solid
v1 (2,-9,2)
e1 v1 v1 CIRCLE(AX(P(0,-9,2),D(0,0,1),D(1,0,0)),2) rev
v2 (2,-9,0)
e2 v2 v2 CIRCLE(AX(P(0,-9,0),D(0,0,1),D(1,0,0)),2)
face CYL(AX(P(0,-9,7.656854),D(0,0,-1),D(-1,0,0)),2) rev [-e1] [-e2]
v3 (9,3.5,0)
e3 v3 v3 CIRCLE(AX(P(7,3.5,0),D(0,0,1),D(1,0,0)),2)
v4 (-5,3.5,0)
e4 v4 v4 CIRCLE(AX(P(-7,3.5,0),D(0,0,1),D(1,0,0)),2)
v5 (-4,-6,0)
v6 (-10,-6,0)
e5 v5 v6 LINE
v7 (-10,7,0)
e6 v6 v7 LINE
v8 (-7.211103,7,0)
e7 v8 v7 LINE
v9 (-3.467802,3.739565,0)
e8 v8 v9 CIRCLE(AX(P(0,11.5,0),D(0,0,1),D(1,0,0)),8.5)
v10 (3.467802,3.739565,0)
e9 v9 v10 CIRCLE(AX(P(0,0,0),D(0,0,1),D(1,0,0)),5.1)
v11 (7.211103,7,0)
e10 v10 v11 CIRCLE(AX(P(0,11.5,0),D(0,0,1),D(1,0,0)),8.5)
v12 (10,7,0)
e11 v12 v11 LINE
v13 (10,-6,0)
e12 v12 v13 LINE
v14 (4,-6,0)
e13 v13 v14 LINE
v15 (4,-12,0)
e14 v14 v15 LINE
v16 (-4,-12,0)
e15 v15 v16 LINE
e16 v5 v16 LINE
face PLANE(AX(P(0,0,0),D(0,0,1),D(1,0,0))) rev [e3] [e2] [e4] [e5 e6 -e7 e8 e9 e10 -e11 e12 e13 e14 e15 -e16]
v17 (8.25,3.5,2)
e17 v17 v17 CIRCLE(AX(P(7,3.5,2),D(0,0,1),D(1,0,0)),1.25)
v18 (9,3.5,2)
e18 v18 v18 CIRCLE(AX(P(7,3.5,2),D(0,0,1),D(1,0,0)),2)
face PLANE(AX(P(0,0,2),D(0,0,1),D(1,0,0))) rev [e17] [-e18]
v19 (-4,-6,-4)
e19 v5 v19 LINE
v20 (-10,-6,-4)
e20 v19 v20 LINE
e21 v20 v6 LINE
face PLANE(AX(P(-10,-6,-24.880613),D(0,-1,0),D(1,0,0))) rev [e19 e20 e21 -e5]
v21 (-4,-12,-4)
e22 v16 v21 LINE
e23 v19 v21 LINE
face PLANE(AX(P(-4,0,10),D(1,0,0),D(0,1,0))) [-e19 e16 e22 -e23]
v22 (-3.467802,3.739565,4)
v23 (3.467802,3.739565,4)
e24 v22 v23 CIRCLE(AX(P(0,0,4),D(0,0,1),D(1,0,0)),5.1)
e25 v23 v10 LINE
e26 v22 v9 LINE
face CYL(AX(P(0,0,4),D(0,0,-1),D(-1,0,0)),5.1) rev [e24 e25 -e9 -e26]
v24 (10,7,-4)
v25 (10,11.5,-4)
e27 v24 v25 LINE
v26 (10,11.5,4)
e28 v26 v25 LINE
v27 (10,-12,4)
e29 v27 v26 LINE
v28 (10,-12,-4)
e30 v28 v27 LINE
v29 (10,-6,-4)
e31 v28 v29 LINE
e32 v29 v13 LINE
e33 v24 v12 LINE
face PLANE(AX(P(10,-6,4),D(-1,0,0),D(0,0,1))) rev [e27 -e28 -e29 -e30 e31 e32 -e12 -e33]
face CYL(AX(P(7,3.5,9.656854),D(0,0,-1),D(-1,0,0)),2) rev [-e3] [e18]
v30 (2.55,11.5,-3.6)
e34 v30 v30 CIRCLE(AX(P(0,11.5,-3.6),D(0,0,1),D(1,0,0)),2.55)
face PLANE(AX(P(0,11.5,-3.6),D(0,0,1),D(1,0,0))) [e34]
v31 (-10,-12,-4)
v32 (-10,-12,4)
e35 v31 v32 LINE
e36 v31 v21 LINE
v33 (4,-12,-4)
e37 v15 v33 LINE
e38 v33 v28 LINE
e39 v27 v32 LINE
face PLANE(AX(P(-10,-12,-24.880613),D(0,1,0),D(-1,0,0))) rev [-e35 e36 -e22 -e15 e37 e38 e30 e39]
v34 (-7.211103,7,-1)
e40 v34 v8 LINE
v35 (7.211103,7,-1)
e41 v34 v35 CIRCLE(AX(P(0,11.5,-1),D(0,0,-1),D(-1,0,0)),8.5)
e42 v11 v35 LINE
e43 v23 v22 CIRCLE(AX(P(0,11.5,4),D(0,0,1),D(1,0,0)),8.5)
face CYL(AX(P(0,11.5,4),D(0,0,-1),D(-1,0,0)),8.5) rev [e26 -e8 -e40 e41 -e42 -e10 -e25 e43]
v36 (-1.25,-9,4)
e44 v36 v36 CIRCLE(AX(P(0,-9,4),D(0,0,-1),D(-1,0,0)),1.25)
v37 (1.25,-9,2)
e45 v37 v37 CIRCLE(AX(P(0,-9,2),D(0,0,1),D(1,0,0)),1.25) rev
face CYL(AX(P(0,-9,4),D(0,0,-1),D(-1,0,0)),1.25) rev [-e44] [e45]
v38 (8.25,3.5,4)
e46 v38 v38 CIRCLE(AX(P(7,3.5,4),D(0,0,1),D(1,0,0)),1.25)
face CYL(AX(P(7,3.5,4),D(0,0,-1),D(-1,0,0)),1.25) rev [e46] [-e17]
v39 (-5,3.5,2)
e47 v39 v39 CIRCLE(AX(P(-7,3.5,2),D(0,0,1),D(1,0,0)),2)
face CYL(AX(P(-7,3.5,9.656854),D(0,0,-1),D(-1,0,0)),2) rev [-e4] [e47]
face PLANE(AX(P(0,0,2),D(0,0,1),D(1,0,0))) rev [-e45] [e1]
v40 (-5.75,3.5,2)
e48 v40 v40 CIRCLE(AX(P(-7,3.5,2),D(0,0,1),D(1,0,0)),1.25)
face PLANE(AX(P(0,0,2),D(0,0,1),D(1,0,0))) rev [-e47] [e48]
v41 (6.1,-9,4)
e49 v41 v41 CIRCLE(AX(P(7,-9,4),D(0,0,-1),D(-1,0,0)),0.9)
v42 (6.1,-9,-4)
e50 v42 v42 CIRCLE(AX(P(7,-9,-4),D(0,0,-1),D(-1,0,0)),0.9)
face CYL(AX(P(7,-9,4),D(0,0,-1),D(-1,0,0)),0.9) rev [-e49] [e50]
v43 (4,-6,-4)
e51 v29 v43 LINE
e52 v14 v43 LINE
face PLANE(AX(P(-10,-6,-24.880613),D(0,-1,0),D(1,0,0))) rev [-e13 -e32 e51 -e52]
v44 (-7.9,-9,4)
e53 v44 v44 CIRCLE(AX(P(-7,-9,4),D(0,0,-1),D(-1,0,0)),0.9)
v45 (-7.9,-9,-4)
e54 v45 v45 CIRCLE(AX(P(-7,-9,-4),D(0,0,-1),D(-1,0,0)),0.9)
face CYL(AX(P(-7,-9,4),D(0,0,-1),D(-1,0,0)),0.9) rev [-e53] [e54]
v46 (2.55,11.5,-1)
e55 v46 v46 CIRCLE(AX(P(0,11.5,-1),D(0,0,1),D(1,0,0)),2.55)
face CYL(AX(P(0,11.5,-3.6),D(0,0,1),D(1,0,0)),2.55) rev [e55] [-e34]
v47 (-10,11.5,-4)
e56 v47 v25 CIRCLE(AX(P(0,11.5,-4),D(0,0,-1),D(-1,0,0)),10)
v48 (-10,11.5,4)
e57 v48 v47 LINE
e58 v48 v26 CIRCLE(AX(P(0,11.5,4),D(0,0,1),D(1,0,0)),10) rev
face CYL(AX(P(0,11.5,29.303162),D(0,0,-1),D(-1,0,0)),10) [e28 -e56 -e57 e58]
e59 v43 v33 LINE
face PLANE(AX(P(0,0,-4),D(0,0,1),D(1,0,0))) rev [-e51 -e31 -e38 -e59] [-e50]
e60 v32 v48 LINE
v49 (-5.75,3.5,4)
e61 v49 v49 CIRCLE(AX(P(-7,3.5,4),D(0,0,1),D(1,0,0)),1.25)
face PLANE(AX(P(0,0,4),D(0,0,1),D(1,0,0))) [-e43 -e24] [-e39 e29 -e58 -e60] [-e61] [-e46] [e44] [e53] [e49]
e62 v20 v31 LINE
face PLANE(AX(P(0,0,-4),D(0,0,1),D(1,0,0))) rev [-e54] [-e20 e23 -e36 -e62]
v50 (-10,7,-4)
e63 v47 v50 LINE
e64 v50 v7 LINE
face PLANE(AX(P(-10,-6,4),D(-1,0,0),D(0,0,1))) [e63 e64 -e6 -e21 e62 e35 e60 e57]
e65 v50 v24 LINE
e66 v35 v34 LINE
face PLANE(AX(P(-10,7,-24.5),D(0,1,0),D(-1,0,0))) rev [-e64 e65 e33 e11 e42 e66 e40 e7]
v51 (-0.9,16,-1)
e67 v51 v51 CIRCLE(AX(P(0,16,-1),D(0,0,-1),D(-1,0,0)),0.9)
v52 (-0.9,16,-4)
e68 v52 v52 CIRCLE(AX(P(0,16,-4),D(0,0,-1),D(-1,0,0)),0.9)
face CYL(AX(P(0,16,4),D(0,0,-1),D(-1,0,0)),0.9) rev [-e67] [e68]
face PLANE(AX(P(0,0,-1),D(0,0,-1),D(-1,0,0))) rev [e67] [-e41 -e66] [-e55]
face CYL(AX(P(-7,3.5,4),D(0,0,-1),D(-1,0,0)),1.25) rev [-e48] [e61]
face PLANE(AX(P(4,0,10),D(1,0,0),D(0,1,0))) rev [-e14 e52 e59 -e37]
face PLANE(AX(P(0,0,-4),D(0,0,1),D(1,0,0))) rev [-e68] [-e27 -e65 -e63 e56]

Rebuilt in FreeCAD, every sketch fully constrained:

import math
import FreeCAD as App
import Part
import Sketcher

doc = App.newDocument("Part")
body = doc.addObject("PartDesign::Body", "Body")

sketch1 = body.newObject("Sketcher::SketchObject", "Sketch")
sketch1.AttachmentSupport = (doc.getObject("XY_Plane"), [""])
sketch1.MapMode = "FlatFace"
sketch1.addGeometry(Part.LineSegment(App.Vector(-10, 6, 0), App.Vector(-10, -6, 0)), False)
sketch1.addGeometry(Part.LineSegment(App.Vector(-10, -6, 0), App.Vector(10, -6, 0)), False)
sketch1.addGeometry(Part.LineSegment(App.Vector(10, -6, 0), App.Vector(10, 6, 0)), False)
sketch1.addGeometry(Part.LineSegment(App.Vector(10, 6, 0), App.Vector(6.5, 6, 0)), False)
sketch1.addGeometry(Part.ArcOfCircle(Part.Circle(App.Vector(0, 11.5, 0), App.Vector(0, 0, 1), 8.5), math.radians(-66), math.radians(-40)), False)
sketch1.addGeometry(Part.ArcOfCircle(Part.Circle(App.Vector(0, 0, 0), App.Vector(0, 0, 1), 5.1), math.radians(133), math.radians(407)), False)
sketch1.addGeometry(Part.ArcOfCircle(Part.Circle(App.Vector(0, 11.5, 0), App.Vector(0, 0, 1), 8.5), math.radians(-140), math.radians(-114)), False)
sketch1.addGeometry(Part.LineSegment(App.Vector(-6.5, 6, 0), App.Vector(-10, 6, 0)), False)
sketch1.addGeometry(Part.Circle(App.Vector(-7, 3.5, 0), App.Vector(0, 0, 1), 1.2), False)
sketch1.addGeometry(Part.Circle(App.Vector(7, 3.5, 0), App.Vector(0, 0, 1), 1.2), False)
sketch1.addConstraint(Sketcher.Constraint("Coincident", 0, 2, 1, 1))
sketch1.addConstraint(Sketcher.Constraint("Coincident", 1, 2, 2, 1))
sketch1.addConstraint(Sketcher.Constraint("Coincident", 2, 2, 3, 1))
sketch1.addConstraint(Sketcher.Constraint("Coincident", 3, 2, 4, 2))
sketch1.addConstraint(Sketcher.Constraint("Coincident", 4, 1, 5, 2))
sketch1.addConstraint(Sketcher.Constraint("Coincident", 5, 1, 6, 2))
sketch1.addConstraint(Sketcher.Constraint("Coincident", 6, 1, 7, 1))
sketch1.addConstraint(Sketcher.Constraint("Coincident", 7, 2, 0, 1))
sketch1.addConstraint(Sketcher.Constraint("Vertical", 0))
sketch1.addConstraint(Sketcher.Constraint("Horizontal", 1))
sketch1.addConstraint(Sketcher.Constraint("Vertical", 2))
sketch1.addConstraint(Sketcher.Constraint("Horizontal", 3))
sketch1.addConstraint(Sketcher.Constraint("Horizontal", 7))
sketch1.addConstraint(Sketcher.Constraint("Coincident", 5, 3, -1, 1))
sketch1.addConstraint(Sketcher.Constraint("Coincident", 6, 3, 4, 3))
sketch1.addConstraint(Sketcher.Constraint("Equal", 4, 6))
sketch1.addConstraint(Sketcher.Constraint("Equal", 8, 9))
sketch1.addConstraint(Sketcher.Constraint("Symmetric", 0, 2, 2, 2, -1, 1))
sketch1.addConstraint(Sketcher.Constraint("Symmetric", 8, 3, 9, 3, -2))
sketch1.addConstraint(Sketcher.Constraint("Symmetric", 3, 2, 6, 1, -2))
sketch1.addConstraint(Sketcher.Constraint("Diameter", 8, 2.5))
sketch1.addConstraint(Sketcher.Constraint("Radius", 4, 8.5))
sketch1.addConstraint(Sketcher.Constraint("Radius", 5, 5.1))
sketch1.addConstraint(Sketcher.Constraint("DistanceX", 1, 1, 1, 2, 20.0))
sketch1.addConstraint(Sketcher.Constraint("DistanceY", 0, 2, 0, 1, 12.0))
sketch1.addConstraint(Sketcher.Constraint("DistanceX", 8, 3, -1, 1, 7.0))
sketch1.addConstraint(Sketcher.Constraint("DistanceY", 8, 3, 6, 3, 8.0))
sketch1.addConstraint(Sketcher.Constraint("DistanceY", -1, 1, 4, 3, 11.5))
pad1 = body.newObject("PartDesign::Pad", "Pad")
pad1.Profile = sketch1
pad1.Length = 8
pad1.Midplane = True

sketch2 = body.newObject("Sketcher::SketchObject", "Sketch001")
sketch2.AttachmentSupport = (doc.getObject("XY_Plane"), [""])
sketch2.MapMode = "FlatFace"
sketch2.AttachmentOffset = App.Placement(App.Vector(0, 0, 4), App.Rotation())
sketch2.addGeometry(Part.LineSegment(App.Vector(-6.5, 6, 0), App.Vector(-10, 6, 0)), False)
sketch2.addGeometry(Part.LineSegment(App.Vector(-10, 6, 0), App.Vector(-10, 11.5, 0)), False)
sketch2.addGeometry(Part.ArcOfCircle(Part.Circle(App.Vector(0, 11.5, 0), App.Vector(0, 0, 1), 10), math.radians(0), math.radians(180)), False)
sketch2.addGeometry(Part.LineSegment(App.Vector(10, 11.5, 0), App.Vector(10, 6, 0)), False)
sketch2.addGeometry(Part.LineSegment(App.Vector(10, 6, 0), App.Vector(6.5, 6, 0)), False)
sketch2.addGeometry(Part.ArcOfCircle(Part.Circle(App.Vector(0, 11.5, 0), App.Vector(0, 0, 1), 8.5), math.radians(-40), math.radians(220)), False)
sketch2.addConstraint(Sketcher.Constraint("Coincident", 0, 2, 1, 1))
sketch2.addConstraint(Sketcher.Constraint("Tangent", 1, 2, 2, 2))
sketch2.addConstraint(Sketcher.Constraint("Tangent", 2, 1, 3, 1))
sketch2.addConstraint(Sketcher.Constraint("Coincident", 3, 2, 4, 1))
sketch2.addConstraint(Sketcher.Constraint("Coincident", 4, 2, 5, 1))
sketch2.addConstraint(Sketcher.Constraint("Coincident", 5, 2, 0, 1))
sketch2.addConstraint(Sketcher.Constraint("Horizontal", 0))
sketch2.addConstraint(Sketcher.Constraint("Vertical", 1))
sketch2.addConstraint(Sketcher.Constraint("Vertical", 3))
sketch2.addConstraint(Sketcher.Constraint("Horizontal", 4))
sketch2.addConstraint(Sketcher.Constraint("Coincident", 5, 3, 2, 3))
sketch2.addConstraint(Sketcher.Constraint("Symmetric", 0, 2, 3, 2, -2))
sketch2.addConstraint(Sketcher.Constraint("Radius", 2, 10.0))
sketch2.addConstraint(Sketcher.Constraint("Radius", 5, 8.5))
sketch2.addConstraint(Sketcher.Constraint("DistanceY", 1, 1, 1, 2, 5.5))
sketch2.addConstraint(Sketcher.Constraint("DistanceY", -1, 1, 0, 2, 6.0))
pad2 = body.newObject("PartDesign::Pad", "Pad001")
pad2.Profile = sketch2
pad2.Length = 8
pad2.Reversed = True

sketch3 = body.newObject("Sketcher::SketchObject", "Sketch002")
sketch3.AttachmentSupport = (doc.getObject("XY_Plane"), [""])
sketch3.MapMode = "FlatFace"
sketch3.AttachmentOffset = App.Placement(App.Vector(0, 0, -1), App.Rotation())
sketch3.addGeometry(Part.LineSegment(App.Vector(6, 6, 0), App.Vector(-6, 6, 0)), False)
sketch3.addGeometry(Part.ArcOfCircle(Part.Circle(App.Vector(0, 11, 0), App.Vector(0, 0, 1), 8), math.radians(180), math.radians(220)), False)
sketch3.addGeometry(Part.ArcOfCircle(Part.Circle(App.Vector(0, 12, 0), App.Vector(0, 0, 1), 8), math.radians(-40), math.radians(180)), False)
sketch3.addConstraint(Sketcher.Constraint("Coincident", 0, 2, 1, 2))
sketch3.addConstraint(Sketcher.Constraint("Tangent", 1, 1, 2, 2))
sketch3.addConstraint(Sketcher.Constraint("Coincident", 2, 1, 0, 1))
sketch3.addConstraint(Sketcher.Constraint("Horizontal", 0))
sketch3.addConstraint(Sketcher.Constraint("Equal", 1, 2))
sketch3.addConstraint(Sketcher.Constraint("PointOnObject", 1, 3, -2))
sketch3.addConstraint(Sketcher.Constraint("Horizontal", 2, 3, 1, 1))
sketch3.addConstraint(Sketcher.Constraint("Radius", 1, 8.5))
sketch3.addConstraint(Sketcher.Constraint("DistanceY", -1, 1, 0, 2, 6.0))
sketch3.addConstraint(Sketcher.Constraint("DistanceY", -1, 1, 1, 3, 11.5))
pad3 = body.newObject("PartDesign::Pad", "Pad002")
pad3.Profile = sketch3
pad3.Length = 3
pad3.Reversed = True

sketch4 = body.newObject("Sketcher::SketchObject", "Sketch003")
sketch4.AttachmentSupport = (doc.getObject("XY_Plane"), [""])
sketch4.MapMode = "FlatFace"
sketch4.AttachmentOffset = App.Placement(App.Vector(0, 0, -4), App.Rotation())
sketch4.addGeometry(Part.Circle(App.Vector(-7, 3.5, 0), App.Vector(0, 0, 1), 2), False)
sketch4.addGeometry(Part.Circle(App.Vector(7, 3.5, 0), App.Vector(0, 0, 1), 2), False)
sketch4.addConstraint(Sketcher.Constraint("Equal", 0, 1))
sketch4.addConstraint(Sketcher.Constraint("Symmetric", 0, 3, 1, 3, -2))
sketch4.addConstraint(Sketcher.Constraint("Diameter", 0, 4.0))
sketch4.addConstraint(Sketcher.Constraint("DistanceX", 0, 3, -1, 1, 7.0))
sketch4.addConstraint(Sketcher.Constraint("DistanceY", -1, 1, 0, 3, 3.5))
pocket1 = body.newObject("PartDesign::Pocket", "Pocket")
pocket1.Profile = sketch4
pocket1.Length = 6
pocket1.Reversed = True

sketch5 = body.newObject("Sketcher::SketchObject", "Sketch004")
sketch5.AttachmentSupport = (doc.getObject("XY_Plane"), [""])
sketch5.MapMode = "FlatFace"
sketch5.AttachmentOffset = App.Placement(App.Vector(0, 0, -4), App.Rotation())
sketch5.addGeometry(Part.LineSegment(App.Vector(10, 12, 0), App.Vector(10, -6, 0)), False)
sketch5.addGeometry(Part.LineSegment(App.Vector(10, -6, 0), App.Vector(-10, -6, 0)), False)
sketch5.addGeometry(Part.LineSegment(App.Vector(-10, -6, 0), App.Vector(-10, 12, 0)), False)
sketch5.addGeometry(Part.LineSegment(App.Vector(-10, 12, 0), App.Vector(10, 12, 0)), False)
sketch5.addConstraint(Sketcher.Constraint("Coincident", 0, 2, 1, 1))
sketch5.addConstraint(Sketcher.Constraint("Coincident", 1, 2, 2, 1))
sketch5.addConstraint(Sketcher.Constraint("Coincident", 2, 2, 3, 1))
sketch5.addConstraint(Sketcher.Constraint("Coincident", 3, 2, 0, 1))
sketch5.addConstraint(Sketcher.Constraint("Vertical", 0))
sketch5.addConstraint(Sketcher.Constraint("Horizontal", 1))
sketch5.addConstraint(Sketcher.Constraint("Vertical", 2))
sketch5.addConstraint(Sketcher.Constraint("Horizontal", 3))
sketch5.addConstraint(Sketcher.Constraint("DistanceX", 1, 2, 1, 1, 20.0))
sketch5.addConstraint(Sketcher.Constraint("DistanceY", 0, 2, 0, 1, 17.5))
sketch5.addConstraint(Sketcher.Constraint("DistanceX", -1, 1, 0, 2, 10.0))
sketch5.addConstraint(Sketcher.Constraint("DistanceY", 0, 2, -1, 1, 6.0))
pocket2 = body.newObject("PartDesign::Pocket", "Pocket001")
pocket2.Profile = sketch5
pocket2.Length = 4
pocket2.Reversed = True

sketch6 = body.newObject("Sketcher::SketchObject", "Sketch005")
sketch6.AttachmentSupport = (doc.getObject("XY_Plane"), [""])
sketch6.MapMode = "FlatFace"
sketch6.AttachmentOffset = App.Placement(App.Vector(0, 0, 4), App.Rotation())
sketch6.addGeometry(Part.LineSegment(App.Vector(10, -6, 0), App.Vector(10, -12, 0)), False)
sketch6.addGeometry(Part.LineSegment(App.Vector(10, -12, 0), App.Vector(-10, -12, 0)), False)
sketch6.addGeometry(Part.LineSegment(App.Vector(-10, -12, 0), App.Vector(-10, -6, 0)), False)
sketch6.addGeometry(Part.LineSegment(App.Vector(-10, -6, 0), App.Vector(10, -6, 0)), False)
sketch6.addConstraint(Sketcher.Constraint("Coincident", 0, 2, 1, 1))
sketch6.addConstraint(Sketcher.Constraint("Coincident", 1, 2, 2, 1))
sketch6.addConstraint(Sketcher.Constraint("Coincident", 2, 2, 3, 1))
sketch6.addConstraint(Sketcher.Constraint("Coincident", 3, 2, 0, 1))
sketch6.addConstraint(Sketcher.Constraint("Vertical", 0))
sketch6.addConstraint(Sketcher.Constraint("Horizontal", 1))
sketch6.addConstraint(Sketcher.Constraint("Vertical", 2))
sketch6.addConstraint(Sketcher.Constraint("Horizontal", 3))
sketch6.addConstraint(Sketcher.Constraint("DistanceX", 1, 2, 1, 1, 20.0))
sketch6.addConstraint(Sketcher.Constraint("DistanceY", 0, 2, 0, 1, 6.0))
sketch6.addConstraint(Sketcher.Constraint("DistanceX", -1, 1, 0, 2, 10.0))
sketch6.addConstraint(Sketcher.Constraint("DistanceY", 0, 2, -1, 1, 12.0))
pad4 = body.newObject("PartDesign::Pad", "Pad003")
pad4.Profile = sketch6
pad4.Length = 8
pad4.Reversed = True

sketch7 = body.newObject("Sketcher::SketchObject", "Sketch006")
sketch7.AttachmentSupport = (doc.getObject("XY_Plane"), [""])
sketch7.MapMode = "FlatFace"
sketch7.AttachmentOffset = App.Placement(App.Vector(0, 0, -4), App.Rotation())
sketch7.addGeometry(Part.LineSegment(App.Vector(4, -6, 0), App.Vector(4, -12, 0)), False)
sketch7.addGeometry(Part.LineSegment(App.Vector(4, -12, 0), App.Vector(-4, -12, 0)), False)
sketch7.addGeometry(Part.LineSegment(App.Vector(-4, -12, 0), App.Vector(-4, -6, 0)), False)
sketch7.addGeometry(Part.LineSegment(App.Vector(-4, -6, 0), App.Vector(4, -6, 0)), False)
sketch7.addConstraint(Sketcher.Constraint("Coincident", 0, 2, 1, 1))
sketch7.addConstraint(Sketcher.Constraint("Coincident", 1, 2, 2, 1))
sketch7.addConstraint(Sketcher.Constraint("Coincident", 2, 2, 3, 1))
sketch7.addConstraint(Sketcher.Constraint("Coincident", 3, 2, 0, 1))
sketch7.addConstraint(Sketcher.Constraint("Vertical", 0))
sketch7.addConstraint(Sketcher.Constraint("Horizontal", 1))
sketch7.addConstraint(Sketcher.Constraint("Vertical", 2))
sketch7.addConstraint(Sketcher.Constraint("Horizontal", 3))
sketch7.addConstraint(Sketcher.Constraint("DistanceX", 1, 2, 1, 1, 8.0))
sketch7.addConstraint(Sketcher.Constraint("DistanceY", 0, 2, 0, 1, 6.0))
sketch7.addConstraint(Sketcher.Constraint("DistanceX", -1, 1, 0, 2, 4.0))
sketch7.addConstraint(Sketcher.Constraint("DistanceY", 0, 2, -1, 1, 12.0))
pocket3 = body.newObject("PartDesign::Pocket", "Pocket002")
pocket3.Profile = sketch7
pocket3.Length = 4
pocket3.Reversed = True

sketch8 = body.newObject("Sketcher::SketchObject", "Sketch007")
sketch8.AttachmentSupport = (doc.getObject("XY_Plane"), [""])
sketch8.MapMode = "FlatFace"
sketch8.AttachmentOffset = App.Placement(App.Vector(0, 0, -4), App.Rotation())
sketch8.addGeometry(Part.Circle(App.Vector(0, -9, 0), App.Vector(0, 0, 1), 1.2), False)
sketch8.addConstraint(Sketcher.Constraint("PointOnObject", 0, 3, -2))
sketch8.addConstraint(Sketcher.Constraint("Diameter", 0, 2.5))
sketch8.addConstraint(Sketcher.Constraint("DistanceY", 0, 3, -1, 1, 9.0))
pocket4 = body.newObject("PartDesign::Pocket", "Pocket003")
pocket4.Profile = sketch8
pocket4.Type = "ThroughAll"
pocket4.Reversed = True

sketch9 = body.newObject("Sketcher::SketchObject", "Sketch008")
sketch9.AttachmentSupport = (doc.getObject("XY_Plane"), [""])
sketch9.MapMode = "FlatFace"
sketch9.AttachmentOffset = App.Placement(App.Vector(0, 0, -4), App.Rotation())
sketch9.addGeometry(Part.Circle(App.Vector(0, -9, 0), App.Vector(0, 0, 1), 2), False)
sketch9.addConstraint(Sketcher.Constraint("PointOnObject", 0, 3, -2))
sketch9.addConstraint(Sketcher.Constraint("Diameter", 0, 4.0))
sketch9.addConstraint(Sketcher.Constraint("DistanceY", 0, 3, -1, 1, 9.0))
pocket5 = body.newObject("PartDesign::Pocket", "Pocket004")
pocket5.Profile = sketch9
pocket5.Length = 6
pocket5.Reversed = True

sketch10 = body.newObject("Sketcher::SketchObject", "Sketch009")
sketch10.AttachmentSupport = (doc.getObject("XY_Plane"), [""])
sketch10.MapMode = "FlatFace"
sketch10.AttachmentOffset = App.Placement(App.Vector(0, 0, -4), App.Rotation())
sketch10.addGeometry(Part.Circle(App.Vector(-7, -9, 0), App.Vector(0, 0, 1), 0.9), False)
sketch10.addGeometry(Part.Circle(App.Vector(7, -9, 0), App.Vector(0, 0, 1), 0.9), False)
sketch10.addGeometry(Part.Circle(App.Vector(0, 16, 0), App.Vector(0, 0, 1), 0.9), False)
sketch10.addConstraint(Sketcher.Constraint("Equal", 0, 1))
sketch10.addConstraint(Sketcher.Constraint("Equal", 1, 2))
sketch10.addConstraint(Sketcher.Constraint("Symmetric", 0, 3, 1, 3, -2))
sketch10.addConstraint(Sketcher.Constraint("PointOnObject", 2, 3, -2))
sketch10.addConstraint(Sketcher.Constraint("Diameter", 0, 1.8))
sketch10.addConstraint(Sketcher.Constraint("DistanceX", 0, 3, -1, 1, 7.0))
sketch10.addConstraint(Sketcher.Constraint("DistanceY", 0, 3, -1, 1, 9.0))
sketch10.addConstraint(Sketcher.Constraint("DistanceY", -1, 1, 2, 3, 16.0))
pocket6 = body.newObject("PartDesign::Pocket", "Pocket005")
pocket6.Profile = sketch10
pocket6.Type = "ThroughAll"
pocket6.Reversed = True

sketch11 = body.newObject("Sketcher::SketchObject", "Sketch010")
sketch11.AttachmentSupport = (doc.getObject("XY_Plane"), [""])
sketch11.MapMode = "FlatFace"
sketch11.addGeometry(Part.LineSegment(App.Vector(10, 11.5, 0), App.Vector(10, 7, 0)), False)
sketch11.addGeometry(Part.LineSegment(App.Vector(10, 7, 0), App.Vector(-10, 7, 0)), False)
sketch11.addGeometry(Part.LineSegment(App.Vector(-10, 7, 0), App.Vector(-10, 11.5, 0)), False)
sketch11.addGeometry(Part.LineSegment(App.Vector(-10, 11.5, 0), App.Vector(10, 11.5, 0)), False)
sketch11.addConstraint(Sketcher.Constraint("Coincident", 0, 2, 1, 1))
sketch11.addConstraint(Sketcher.Constraint("Coincident", 1, 2, 2, 1))
sketch11.addConstraint(Sketcher.Constraint("Coincident", 2, 2, 3, 1))
sketch11.addConstraint(Sketcher.Constraint("Coincident", 3, 2, 0, 1))
sketch11.addConstraint(Sketcher.Constraint("Vertical", 0))
sketch11.addConstraint(Sketcher.Constraint("Horizontal", 1))
sketch11.addConstraint(Sketcher.Constraint("Vertical", 2))
sketch11.addConstraint(Sketcher.Constraint("Horizontal", 3))
sketch11.addConstraint(Sketcher.Constraint("DistanceX", 1, 2, 1, 1, 20.0))
sketch11.addConstraint(Sketcher.Constraint("DistanceY", 0, 2, 0, 1, 4.5))
sketch11.addConstraint(Sketcher.Constraint("DistanceX", -1, 1, 0, 2, 10.0))
sketch11.addConstraint(Sketcher.Constraint("DistanceY", -1, 1, 0, 2, 7.0))
pad5 = body.newObject("PartDesign::Pad", "Pad004")
pad5.Profile = sketch11
pad5.Length = 4
pad5.Reversed = True

sketch12 = body.newObject("Sketcher::SketchObject", "Sketch011")
sketch12.AttachmentSupport = (doc.getObject("XY_Plane"), [""])
sketch12.MapMode = "FlatFace"
sketch12.addGeometry(Part.Circle(App.Vector(0, 12, 0), App.Vector(0, 0, 1), 8), False)
sketch12.addConstraint(Sketcher.Constraint("PointOnObject", 0, 3, -2))
sketch12.addConstraint(Sketcher.Constraint("Diameter", 0, 17.0))
sketch12.addConstraint(Sketcher.Constraint("DistanceY", -1, 1, 0, 3, 11.5))
pocket7 = body.newObject("PartDesign::Pocket", "Pocket006")
pocket7.Profile = sketch12
pocket7.Length = 1

sketch13 = body.newObject("Sketcher::SketchObject", "Sketch012")
sketch13.AttachmentSupport = (doc.getObject("XY_Plane"), [""])
sketch13.MapMode = "FlatFace"
sketch13.AttachmentOffset = App.Placement(App.Vector(0, 0, -1), App.Rotation())
sketch13.addGeometry(Part.Circle(App.Vector(0, 11.5, 0), App.Vector(0, 0, 1), 2.5), False)
sketch13.addConstraint(Sketcher.Constraint("PointOnObject", 0, 3, -2))
sketch13.addConstraint(Sketcher.Constraint("Diameter", 0, 5.1))
sketch13.addConstraint(Sketcher.Constraint("DistanceY", -1, 1, 0, 3, 11.5))
pocket8 = body.newObject("PartDesign::Pocket", "Pocket007")
pocket8.Profile = sketch13
pocket8.Length = 2.6

doc.recompute()
